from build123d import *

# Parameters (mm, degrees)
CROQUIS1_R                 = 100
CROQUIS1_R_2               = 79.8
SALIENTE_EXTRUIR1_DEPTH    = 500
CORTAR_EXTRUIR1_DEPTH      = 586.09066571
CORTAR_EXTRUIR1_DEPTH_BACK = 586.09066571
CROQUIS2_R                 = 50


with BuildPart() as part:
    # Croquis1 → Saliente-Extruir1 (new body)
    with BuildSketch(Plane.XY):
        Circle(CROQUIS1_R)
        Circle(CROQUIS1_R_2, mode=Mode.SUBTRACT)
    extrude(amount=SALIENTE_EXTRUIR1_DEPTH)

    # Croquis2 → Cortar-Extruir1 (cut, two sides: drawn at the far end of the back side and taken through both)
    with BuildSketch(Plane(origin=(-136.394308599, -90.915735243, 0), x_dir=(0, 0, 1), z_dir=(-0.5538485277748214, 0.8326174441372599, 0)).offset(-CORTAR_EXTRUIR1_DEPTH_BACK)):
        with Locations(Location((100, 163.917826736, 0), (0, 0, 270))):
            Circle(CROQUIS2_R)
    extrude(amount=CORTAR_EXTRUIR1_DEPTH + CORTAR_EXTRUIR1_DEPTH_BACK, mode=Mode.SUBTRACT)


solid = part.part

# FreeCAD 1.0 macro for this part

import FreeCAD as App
import Part
import Sketcher

doc = App.newDocument("Part")
body = doc.addObject("PartDesign::Body", "Body")

# Sketch on XY plane
sketch1 = body.newObject("Sketcher::SketchObject", "Sketch")
sketch1.AttachmentSupport = (doc.getObject("XY_Plane"), [""])
sketch1.MapMode = "FlatFace"
sketch1.addGeometry([
    Part.Circle(App.Vector(0, 0, 0), App.Vector(0, 0, 1), 100),
    Part.Circle(App.Vector(0, 0, 0), App.Vector(0, 0, 1), 80),
], False)
sketch1.addConstraint([
    Sketcher.Constraint("Coincident", 0, 3, -1, 1),
    Sketcher.Constraint("Coincident", 1, 3, -1, 1),
    Sketcher.Constraint("Diameter", 0, 200.0),
    Sketcher.Constraint("Diameter", 1, 159.6),
])
pad1 = body.newObject("PartDesign::Pad", "Pad")
pad1.Profile = sketch1
pad1.Length = 500

# Sketch on an angled plane
sketch2 = body.newObject("Sketcher::SketchObject", "Sketch001")
sketch2.Placement = App.Placement(App.Vector(-136.394309, -90.915735, 0), App.Rotation(App.Vector(0, 0, 1), App.Vector(0.832617444, 0.553848528, 0), App.Vector(-0.553848528, 0.832617444, 0), "ZXY"))
sketch2.addGeometry(Part.Circle(App.Vector(100, 164, 0), App.Vector(0, 0, 1), 50), False)
sketch2.addConstraint([
    Sketcher.Constraint("Diameter", 0, 100.0),
    Sketcher.Constraint("DistanceX", -1, 1, 0, 3, 100.0),
    Sketcher.Constraint("DistanceY", -1, 1, 0, 3, 163.917827),
])
pocket1 = body.newObject("PartDesign::Pocket", "Pocket")
pocket1.Profile = sketch2
pocket1.Type = "ThroughAll"
pocket1.Midplane = True

doc.recompute()
